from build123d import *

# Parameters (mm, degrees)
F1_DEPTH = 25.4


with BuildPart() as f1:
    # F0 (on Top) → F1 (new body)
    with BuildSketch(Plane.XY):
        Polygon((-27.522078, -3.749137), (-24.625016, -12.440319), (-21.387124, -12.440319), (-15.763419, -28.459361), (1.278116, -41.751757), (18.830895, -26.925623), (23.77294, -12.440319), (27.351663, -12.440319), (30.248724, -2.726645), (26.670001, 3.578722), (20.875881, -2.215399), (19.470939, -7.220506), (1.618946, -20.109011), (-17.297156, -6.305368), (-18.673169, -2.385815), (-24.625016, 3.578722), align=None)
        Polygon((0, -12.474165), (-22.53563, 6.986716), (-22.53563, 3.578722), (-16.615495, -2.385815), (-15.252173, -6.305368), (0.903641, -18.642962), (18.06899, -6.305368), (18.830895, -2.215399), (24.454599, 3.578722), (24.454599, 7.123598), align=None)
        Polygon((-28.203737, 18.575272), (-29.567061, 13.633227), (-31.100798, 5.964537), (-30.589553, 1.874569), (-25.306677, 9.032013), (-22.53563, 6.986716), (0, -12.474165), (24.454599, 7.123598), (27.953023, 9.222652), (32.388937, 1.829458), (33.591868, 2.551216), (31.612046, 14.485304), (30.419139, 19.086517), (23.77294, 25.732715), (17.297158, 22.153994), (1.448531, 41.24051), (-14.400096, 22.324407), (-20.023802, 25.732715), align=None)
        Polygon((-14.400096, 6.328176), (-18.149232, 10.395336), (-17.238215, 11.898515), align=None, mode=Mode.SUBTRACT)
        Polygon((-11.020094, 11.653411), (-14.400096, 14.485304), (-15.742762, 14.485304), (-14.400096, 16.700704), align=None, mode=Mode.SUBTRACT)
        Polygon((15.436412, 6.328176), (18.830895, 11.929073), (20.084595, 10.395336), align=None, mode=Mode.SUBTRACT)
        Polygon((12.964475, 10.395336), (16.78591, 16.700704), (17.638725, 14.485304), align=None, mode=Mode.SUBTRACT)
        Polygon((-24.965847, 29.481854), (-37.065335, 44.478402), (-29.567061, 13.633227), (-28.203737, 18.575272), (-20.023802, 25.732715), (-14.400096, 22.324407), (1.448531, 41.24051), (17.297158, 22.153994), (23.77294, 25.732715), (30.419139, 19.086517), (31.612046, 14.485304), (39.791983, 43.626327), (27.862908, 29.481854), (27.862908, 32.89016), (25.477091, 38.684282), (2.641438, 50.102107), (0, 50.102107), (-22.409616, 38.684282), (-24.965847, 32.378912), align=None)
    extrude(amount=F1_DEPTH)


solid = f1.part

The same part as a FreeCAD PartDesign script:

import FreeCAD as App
import Part
import Sketcher
from FreeCAD import Vector
Q = App.Units.Quantity

doc = App.newDocument("Part")
body = doc.addObject("PartDesign::Body", "Body")
body.AllowCompound = True

# Sketch on XY plane
sketch1 = doc.addObject("Sketcher::SketchObject", "Sketch")
body.addObject(sketch1)
sketch1.AttachmentSupport = (doc.XY_Plane, [""])
sketch1.MapMode = "FlatFace"
sketch1.addGeometry(Part.LineSegment(Vector(-27.5, -3.7, 0), Vector(-24.6, -12.4, 0)), False)
sketch1.addGeometry(Part.LineSegment(Vector(-24.6, -12.4, 0), Vector(-21.4, -12.4, 0)), False)
sketch1.addGeometry(Part.LineSegment(Vector(-21.4, -12.4, 0), Vector(-15.8, -28.5, 0)), False)
sketch1.addGeometry(Part.LineSegment(Vector(-15.8, -28.5, 0), Vector(1.3, -41.8, 0)), False)
sketch1.addGeometry(Part.LineSegment(Vector(1.3, -41.8, 0), Vector(18.8, -26.9, 0)), False)
sketch1.addGeometry(Part.LineSegment(Vector(18.8, -26.9, 0), Vector(23.8, -12.4, 0)), False)
sketch1.addGeometry(Part.LineSegment(Vector(23.8, -12.4, 0), Vector(27.4, -12.4, 0)), False)
sketch1.addGeometry(Part.LineSegment(Vector(27.4, -12.4, 0), Vector(30.2, -2.7, 0)), False)
sketch1.addGeometry(Part.LineSegment(Vector(30.2, -2.7, 0), Vector(26.7, 3.6, 0)), False)
sketch1.addGeometry(Part.LineSegment(Vector(26.7, 3.6, 0), Vector(20.9, -2.2, 0)), False)
sketch1.addGeometry(Part.LineSegment(Vector(20.9, -2.2, 0), Vector(19.5, -7.2, 0)), False)
sketch1.addGeometry(Part.LineSegment(Vector(19.5, -7.2, 0), Vector(1.6, -20.1, 0)), False)
sketch1.addGeometry(Part.LineSegment(Vector(1.6, -20.1, 0), Vector(-17.3, -6.3, 0)), False)
sketch1.addGeometry(Part.LineSegment(Vector(-17.3, -6.3, 0), Vector(-18.7, -2.4, 0)), False)
sketch1.addGeometry(Part.LineSegment(Vector(-18.7, -2.4, 0), Vector(-24.6, 3.6, 0)), False)
sketch1.addGeometry(Part.LineSegment(Vector(-24.6, 3.6, 0), Vector(-27.5, -3.7, 0)), False)
sketch1.addGeometry(Part.LineSegment(Vector(-22.5, 7, 0), Vector(-22.5, 3.6, 0)), False)
sketch1.addGeometry(Part.LineSegment(Vector(-22.5, 3.6, 0), Vector(-16.6, -2.4, 0)), False)
sketch1.addGeometry(Part.LineSegment(Vector(-16.6, -2.4, 0), Vector(-15.3, -6.3, 0)), False)
sketch1.addGeometry(Part.LineSegment(Vector(-15.3, -6.3, 0), Vector(0.9, -18.6, 0)), False)
sketch1.addGeometry(Part.LineSegment(Vector(0.9, -18.6, 0), Vector(18.1, -6.3, 0)), False)
sketch1.addGeometry(Part.LineSegment(Vector(18.1, -6.3, 0), Vector(18.8, -2.2, 0)), False)
sketch1.addGeometry(Part.LineSegment(Vector(18.8, -2.2, 0), Vector(24.5, 3.6, 0)), False)
sketch1.addGeometry(Part.LineSegment(Vector(24.5, 3.6, 0), Vector(24.5, 7.1, 0)), False)
sketch1.addGeometry(Part.LineSegment(Vector(24.5, 7.1, 0), Vector(28, 9.2, 0)), False)
sketch1.addGeometry(Part.LineSegment(Vector(28, 9.2, 0), Vector(32.4, 1.8, 0)), False)
sketch1.addGeometry(Part.LineSegment(Vector(32.4, 1.8, 0), Vector(33.6, 2.6, 0)), False)
sketch1.addGeometry(Part.LineSegment(Vector(33.6, 2.6, 0), Vector(31.6, 14.5, 0)), False)
sketch1.addGeometry(Part.LineSegment(Vector(31.6, 14.5, 0), Vector(39.8, 43.6, 0)), False)
sketch1.addGeometry(Part.LineSegment(Vector(39.8, 43.6, 0), Vector(27.9, 29.5, 0)), False)
sketch1.addGeometry(Part.LineSegment(Vector(27.9, 29.5, 0), Vector(27.9, 32.9, 0)), False)
sketch1.addGeometry(Part.LineSegment(Vector(27.9, 32.9, 0), Vector(25.5, 38.7, 0)), False)
sketch1.addGeometry(Part.LineSegment(Vector(25.5, 38.7, 0), Vector(2.6, 50.1, 0)), False)
sketch1.addGeometry(Part.LineSegment(Vector(2.6, 50.1, 0), Vector(0, 50.1, 0)), False)
sketch1.addGeometry(Part.LineSegment(Vector(0, 50.1, 0), Vector(-22.4, 38.7, 0)), False)
sketch1.addGeometry(Part.LineSegment(Vector(-22.4, 38.7, 0), Vector(-25, 32.4, 0)), False)
sketch1.addGeometry(Part.LineSegment(Vector(-25, 32.4, 0), Vector(-25, 29.5, 0)), False)
sketch1.addGeometry(Part.LineSegment(Vector(-25, 29.5, 0), Vector(-37.1, 44.5, 0)), False)
sketch1.addGeometry(Part.LineSegment(Vector(-37.1, 44.5, 0), Vector(-29.6, 13.6, 0)), False)
sketch1.addGeometry(Part.LineSegment(Vector(-29.6, 13.6, 0), Vector(-31.1, 6, 0)), False)
sketch1.addGeometry(Part.LineSegment(Vector(-31.1, 6, 0), Vector(-30.6, 1.9, 0)), False)
sketch1.addGeometry(Part.LineSegment(Vector(-30.6, 1.9, 0), Vector(-25.3, 9, 0)), False)
sketch1.addGeometry(Part.LineSegment(Vector(-25.3, 9, 0), Vector(-22.5, 7, 0)), False)
sketch1.addGeometry(Part.LineSegment(Vector(-17.2, 11.9, 0), Vector(-14.4, 6.3, 0)), False)
sketch1.addGeometry(Part.LineSegment(Vector(-14.4, 6.3, 0), Vector(-18.1, 10.4, 0)), False)
sketch1.addGeometry(Part.LineSegment(Vector(-18.1, 10.4, 0), Vector(-17.2, 11.9, 0)), False)
sketch1.addGeometry(Part.LineSegment(Vector(20.1, 10.4, 0), Vector(15.4, 6.3, 0)), False)
sketch1.addGeometry(Part.LineSegment(Vector(15.4, 6.3, 0), Vector(18.8, 11.9, 0)), False)
sketch1.addGeometry(Part.LineSegment(Vector(18.8, 11.9, 0), Vector(20.1, 10.4, 0)), False)
sketch1.addGeometry(Part.LineSegment(Vector(-14.4, 16.7, 0), Vector(-11, 11.7, 0)), False)
sketch1.addGeometry(Part.LineSegment(Vector(-11, 11.7, 0), Vector(-14.4, 14.5, 0)), False)
sketch1.addGeometry(Part.LineSegment(Vector(-14.4, 14.5, 0), Vector(-15.7, 14.5, 0)), False)
sketch1.addGeometry(Part.LineSegment(Vector(-15.7, 14.5, 0), Vector(-14.4, 16.7, 0)), False)
sketch1.addGeometry(Part.LineSegment(Vector(17.6, 14.5, 0), Vector(13, 10.4, 0)), False)
sketch1.addGeometry(Part.LineSegment(Vector(13, 10.4, 0), Vector(16.8, 16.7, 0)), False)
sketch1.addGeometry(Part.LineSegment(Vector(16.8, 16.7, 0), Vector(17.6, 14.5, 0)), False)
sketch1.addConstraint(Sketcher.Constraint("Coincident", 0, 2, 1, 1))
sketch1.addConstraint(Sketcher.Constraint("Coincident", 1, 2, 2, 1))
sketch1.addConstraint(Sketcher.Constraint("Coincident", 2, 2, 3, 1))
sketch1.addConstraint(Sketcher.Constraint("Coincident", 3, 2, 4, 1))
sketch1.addConstraint(Sketcher.Constraint("Coincident", 4, 2, 5, 1))
sketch1.addConstraint(Sketcher.Constraint("Coincident", 5, 2, 6, 1))
sketch1.addConstraint(Sketcher.Constraint("Coincident", 6, 2, 7, 1))
sketch1.addConstraint(Sketcher.Constraint("Coincident", 7, 2, 8, 1))
sketch1.addConstraint(Sketcher.Constraint("Coincident", 8, 2, 9, 1))
sketch1.addConstraint(Sketcher.Constraint("Coincident", 9, 2, 10, 1))
sketch1.addConstraint(Sketcher.Constraint("Coincident", 10, 2, 11, 1))
sketch1.addConstraint(Sketcher.Constraint("Coincident", 11, 2, 12, 1))
sketch1.addConstraint(Sketcher.Constraint("Coincident", 12, 2, 13, 1))
sketch1.addConstraint(Sketcher.Constraint("Coincident", 13, 2, 14, 1))
sketch1.addConstraint(Sketcher.Constraint("Coincident", 14, 2, 15, 1))
sketch1.addConstraint(Sketcher.Constraint("Coincident", 15, 2, 0, 1))
sketch1.addConstraint(Sketcher.Constraint("Coincident", 16, 2, 17, 1))
sketch1.addConstraint(Sketcher.Constraint("Coincident", 17, 2, 18, 1))
sketch1.addConstraint(Sketcher.Constraint("Coincident", 18, 2, 19, 1))
sketch1.addConstraint(Sketcher.Constraint("Coincident", 19, 2, 20, 1))
sketch1.addConstraint(Sketcher.Constraint("Coincident", 20, 2, 21, 1))
sketch1.addConstraint(Sketcher.Constraint("Coincident", 21, 2, 22, 1))
sketch1.addConstraint(Sketcher.Constraint("Coincident", 22, 2, 23, 1))
sketch1.addConstraint(Sketcher.Constraint("Coincident", 23, 2, 24, 1))
sketch1.addConstraint(Sketcher.Constraint("Coincident", 24, 2, 25, 1))
sketch1.addConstraint(Sketcher.Constraint("Coincident", 25, 2, 26, 1))
sketch1.addConstraint(Sketcher.Constraint("Coincident", 26, 2, 27, 1))
sketch1.addConstraint(Sketcher.Constraint("Coincident", 27, 2, 28, 1))
sketch1.addConstraint(Sketcher.Constraint("Coincident", 28, 2, 29, 1))
sketch1.addConstraint(Sketcher.Constraint("Coincident", 29, 2, 30, 1))
sketch1.addConstraint(Sketcher.Constraint("Coincident", 30, 2, 31, 1))
sketch1.addConstraint(Sketcher.Constraint("Coincident", 31, 2, 32, 1))
sketch1.addConstraint(Sketcher.Constraint("Coincident", 32, 2, 33, 1))
sketch1.addConstraint(Sketcher.Constraint("Coincident", 33, 2, 34, 1))
sketch1.addConstraint(Sketcher.Constraint("Coincident", 34, 2, 35, 1))
sketch1.addConstraint(Sketcher.Constraint("Coincident", 35, 2, 36, 1))
sketch1.addConstraint(Sketcher.Constraint("Coincident", 36, 2, 37, 1))
sketch1.addConstraint(Sketcher.Constraint("Coincident", 37, 2, 38, 1))
sketch1.addConstraint(Sketcher.Constraint("Coincident", 38, 2, 39, 1))
sketch1.addConstraint(Sketcher.Constraint("Coincident", 39, 2, 40, 1))
sketch1.addConstraint(Sketcher.Constraint("Coincident", 40, 2, 41, 1))
sketch1.addConstraint(Sketcher.Constraint("Coincident", 41, 2, 42, 1))
sketch1.addConstraint(Sketcher.Constraint("Coincident", 42, 2, 16, 1))
sketch1.addConstraint(Sketcher.Constraint("Coincident", 43, 2, 44, 1))
sketch1.addConstraint(Sketcher.Constraint("Coincident", 44, 2, 45, 1))
sketch1.addConstraint(Sketcher.Constraint("Coincident", 45, 2, 43, 1))
sketch1.addConstraint(Sketcher.Constraint("Coincident", 46, 2, 47, 1))
sketch1.addConstraint(Sketcher.Constraint("Coincident", 47, 2, 48, 1))
sketch1.addConstraint(Sketcher.Constraint("Coincident", 48, 2, 46, 1))
sketch1.addConstraint(Sketcher.Constraint("Coincident", 49, 2, 50, 1))
sketch1.addConstraint(Sketcher.Constraint("Coincident", 50, 2, 51, 1))
sketch1.addConstraint(Sketcher.Constraint("Coincident", 51, 2, 52, 1))
sketch1.addConstraint(Sketcher.Constraint("Coincident", 52, 2, 49, 1))
sketch1.addConstraint(Sketcher.Constraint("Coincident", 53, 2, 54, 1))
sketch1.addConstraint(Sketcher.Constraint("Coincident", 54, 2, 55, 1))
sketch1.addConstraint(Sketcher.Constraint("Coincident", 55, 2, 53, 1))
sketch1.addConstraint(Sketcher.Constraint("Horizontal", 1))
sketch1.addConstraint(Sketcher.Constraint("Horizontal", 6))
sketch1.addConstraint(Sketcher.Constraint("Vertical", 16))
sketch1.addConstraint(Sketcher.Constraint("Vertical", 23))
sketch1.addConstraint(Sketcher.Constraint("Vertical", 30))
sketch1.addConstraint(Sketcher.Constraint("Horizontal", 33))
sketch1.addConstraint(Sketcher.Constraint("Vertical", 36))
sketch1.addConstraint(Sketcher.Constraint("Horizontal", 51))
sketch1.addConstraint(Sketcher.Constraint("PointOnObject", 33, 2, -2))
sketch1.addConstraint(Sketcher.Constraint("Parallel", 2, 13))
sketch1.addConstraint(Sketcher.Constraint("Perpendicular", 24, 25))
sketch1.addConstraint(Sketcher.Constraint("Perpendicular", 25, 26))
sketch1.addConstraint(Sketcher.Constraint("Parallel", 10, 28))
sketch1.addConstraint(Sketcher.Constraint("Perpendicular", 41, 42))
sketch1.addConstraint(Sketcher.Constraint("Perpendicular", 34, 43))
sketch1.addConstraint(Sketcher.Constraint("Parallel", 45, 47))
sketch1.addConstraint(Sketcher.Constraint("Parallel", 47, 52))
sketch1.addConstraint(Sketcher.Constraint("Parallel", 46, 53))
sketch1.addConstraint(Sketcher.Constraint("Parallel", 52, 54))
sketch1.addConstraint(Sketcher.Constraint("Horizontal", 1, 2, 5, 2))
sketch1.addConstraint(Sketcher.Constraint("Horizontal", 8, 2, 14, 2))
sketch1.addConstraint(Sketcher.Constraint("Horizontal", 14, 2, 16, 2))
sketch1.addConstraint(Sketcher.Constraint("Horizontal", 13, 2, 17, 2))
sketch1.addConstraint(Sketcher.Constraint("Horizontal", 12, 2, 18, 2))
sketch1.addConstraint(Sketcher.Constraint("Horizontal", 18, 2, 20, 2))
sketch1.addConstraint(Sketcher.Constraint("Horizontal", 9, 2, 21, 2))
sketch1.addConstraint(Sketcher.Constraint("Horizontal", 16, 2, 22, 2))
sketch1.addConstraint(Sketcher.Constraint("Horizontal", 31, 2, 34, 2))
sketch1.addConstraint(Sketcher.Constraint("Horizontal", 29, 2, 36, 2))
sketch1.addConstraint(Sketcher.Constraint("Horizontal", 43, 2, 46, 2))
sketch1.addConstraint(Sketcher.Constraint("Horizontal", 44, 2, 48, 2))
sketch1.addConstraint(Sketcher.Constraint("Horizontal", 27, 2, 50, 2))
sketch1.addConstraint(Sketcher.Constraint("Horizontal", 48, 2, 53, 2))
sketch1.addConstraint(Sketcher.Constraint("Horizontal", 52, 2, 54, 2))
sketch1.addConstraint(Sketcher.Constraint("Horizontal", 51, 2, 55, 2))
sketch1.addConstraint(Sketcher.Constraint("Vertical", 0, 2, 14, 2))
sketch1.addConstraint(Sketcher.Constraint("Vertical", 4, 2, 21, 2))
sketch1.addConstraint(Sketcher.Constraint("Vertical", 21, 2, 47, 2))
sketch1.addConstraint(Sketcher.Constraint("Vertical", 43, 2, 50, 2))
sketch1.addConstraint(Sketcher.Constraint("Vertical", 50, 2, 52, 2))
sketch1.addConstraint(Sketcher.Constraint("Angle", 9, Q("-134.999995 deg")))
sketch1.addConstraint(Sketcher.Constraint("DistanceX", -1, 1, 8, 2, Q("1.05 in")))
sketch1.addConstraint(Sketcher.Constraint("Distance", 34, 25.150698))
sketch1.addConstraint(Sketcher.Constraint("DistanceX", 1, 1, 1, 2, 3.237892))
sketch1.addConstraint(Sketcher.Constraint("DistanceX", 33, 2, 33, 1, 2.641438))
sketch1.addConstraint(Sketcher.Constraint("DistanceY", 36, 2, 36, 1, 2.897058))
sketch1.addConstraint(Sketcher.Constraint("DistanceY", 9, 2, -1, 1, 2.215399))
sketch1.addConstraint(Sketcher.Constraint("DistanceX", -1, 1, 22, 2, 24.454599))
sketch1.addConstraint(Sketcher.Constraint("DistanceY", -1, 1, 23, 2, 7.123598))
sketch1.addConstraint(Sketcher.Constraint("DistanceX", 39, 2, -1, 1, 31.100798))
sketch1.addConstraint(Sketcher.Constraint("DistanceX", 10, 2, 5, 2, 4.302001))
sketch1.addConstraint(Sketcher.Constraint("DistanceY", 2, 2, 19, 2, 9.816399))
sketch1.addConstraint(Sketcher.Constraint("DistanceX", 19, 2, 10, 2, 18.567298))
sketch1.addConstraint(Sketcher.Constraint("DistanceX", 24, 2, 7, 2, 2.295701))
sketch1.addConstraint(Sketcher.Constraint("DistanceY", 24, 2, 29, 2, 20.259202))
sketch1.addConstraint(Sketcher.Constraint("DistanceX", 14, 2, 34, 2, 2.2154))
sketch1.addConstraint(Sketcher.Constraint("DistanceX", 17, 2, 43, 2, 2.215399))
sketch1.addConstraint(Sketcher.Constraint("DistanceY", 42, 2, 45, 2, 4.911799))
sketch1.addConstraint(Sketcher.Constraint("DistanceX", 47, 2, 48, 2, 1.2537))
sketch1.addConstraint(Sketcher.Constraint("DistanceX", 43, 2, 49, 2, 3.380002))
sketch1.addConstraint(Sketcher.Constraint("DistanceY", 50, 2, 52, 2, 2.2154))
sketch1.addConstraint(Sketcher.Constraint("DistanceX", 46, 2, 54, 2, 1.349498))
sketch1.addConstraint(Sketcher.Constraint("Distance", 0, 9.161311))
sketch1.addConstraint(Sketcher.Constraint("Distance", 7, 10.13649))
sketch1.addConstraint(Sketcher.Constraint("Distance", 11, 22.018338))
sketch1.addConstraint(Sketcher.Constraint("Distance", 13, 4.154071))
sketch1.addConstraint(Sketcher.Constraint("Distance", 14, 8.426161))
sketch1.addConstraint(Sketcher.Constraint("Distance", 15, 7.879752))
sketch1.addConstraint(Sketcher.Constraint("Distance", 17, 8.403791))
sketch1.addConstraint(Sketcher.Constraint("Distance", 20, 21.139192))
sketch1.addConstraint(Sketcher.Constraint("Distance", 21, 4.16033))
sketch1.addConstraint(Sketcher.Constraint("Distance", 22, 8.074521))
sketch1.addConstraint(Sketcher.Constraint("Distance", 24, 4.079828))
sketch1.addConstraint(Sketcher.Constraint("Distance", 25, 8.62187))
sketch1.addConstraint(Sketcher.Constraint("Distance", 28, 30.267319))
sketch1.addConstraint(Sketcher.Constraint("Distance", 39, 7.82056))
sketch1.addConstraint(Sketcher.Constraint("Distance", 41, 8.895942))
sketch1.addConstraint(Sketcher.Constraint("Distance", 44, 5.531529))
sketch1.addConstraint(Sketcher.Constraint("Distance", 47, 6.549241))
sketch1.addConstraint(Sketcher.Constraint("Distance", 50, 4.409539))
sketch1.addConstraint(Sketcher.Constraint("Distance", 52, 2.590511))
sketch1.addConstraint(Sketcher.Constraint("DistanceX", 6, 1, 6, 2, 3.578723))
sketch1.addConstraint(Sketcher.Constraint("DistanceY", 16, 2, 16, 1, 3.407994))
sketch1.addConstraint(Sketcher.Constraint("DistanceY", 23, 1, 23, 2, 3.544876))
sketch1.addConstraint(Sketcher.Constraint("DistanceY", 30, 1, 30, 2, 3.408306))
sketch1.addConstraint(Sketcher.Constraint("DistanceY", 0, 2, -1, 1, 12.440319))
sketch1.addConstraint(Sketcher.Constraint("DistanceX", 2, 2, -1, 1, 15.763419))
sketch1.addConstraint(Sketcher.Constraint("DistanceY", 2, 2, -1, 1, 28.459361))
sketch1.addConstraint(Sketcher.Constraint("DistanceX", -1, 1, 5, 2, 23.77294))
sketch1.addConstraint(Sketcher.Constraint("DistanceY", 11, 2, -1, 1, 20.109011))
sketch1.addConstraint(Sketcher.Constraint("DistanceX", 13, 2, -1, 1, 18.673169))
sketch1.addConstraint(Sketcher.Constraint("DistanceX", 16, 2, -1, 1, 22.53563))
sketch1.addConstraint(Sketcher.Constraint("DistanceX", -1, 1, 29, 2, 27.862908))
sketch1.addConstraint(Sketcher.Constraint("DistanceY", -1, 1, 30, 2, 32.89016))
sketch1.addConstraint(Sketcher.Constraint("DistanceX", -1, 1, 31, 2, 25.477091))
sketch1.addConstraint(Sketcher.Constraint("DistanceX", 38, 2, -1, 1, 29.567061))
sketch1.addConstraint(Sketcher.Constraint("DistanceY", -1, 1, 40, 2, 1.874569))
sketch1.addConstraint(Sketcher.Constraint("DistanceY", -1, 1, 49, 2, 11.653411))
sketch1.addConstraint(Sketcher.Constraint("DistanceX", 1, 2, 3, 2, 22.66524))
sketch1.addConstraint(Sketcher.Constraint("DistanceY", 4, 2, 7, 2, 24.198978))
sketch1.addConstraint(Sketcher.Constraint("DistanceY", 10, 2, 7, 2, 4.493861))
sketch1.addConstraint(Sketcher.Constraint("DistanceX", 17, 2, 18, 2, 1.363322))
sketch1.addConstraint(Sketcher.Constraint("DistanceX", 25, 2, 26, 2, 1.202931))
sketch1.addConstraint(Sketcher.Constraint("DistanceX", 27, 2, 26, 2, 1.979822))
sketch1.addConstraint(Sketcher.Constraint("DistanceY", 29, 2, 31, 2, 9.202428))
sketch1.addConstraint(Sketcher.Constraint("DistanceX", 35, 2, 34, 2, 2.556231))
sketch1.addConstraint(Sketcher.Constraint("DistanceX", 37, 2, 34, 2, 14.655719))
sketch1.addConstraint(Sketcher.Constraint("DistanceY", 34, 2, 37, 2, 5.79412))
sketch1.addConstraint(Sketcher.Constraint("DistanceX", 40, 2, 38, 2, 1.022492))
sketch1.addConstraint(Sketcher.Constraint("DistanceY", 39, 2, 42, 2, 1.022179))
sketch1.addConstraint(Sketcher.Constraint("DistanceY", 43, 2, 42, 2, 0.65854))
sketch1.addConstraint(Sketcher.Constraint("Distance", 3, 21.612536))
pad1 = doc.addObject("PartDesign::Pad", "Pad")
body.addObject(pad1)
pad1.Profile = sketch1
pad1.Length = Q("1 in")

doc.recompute()
